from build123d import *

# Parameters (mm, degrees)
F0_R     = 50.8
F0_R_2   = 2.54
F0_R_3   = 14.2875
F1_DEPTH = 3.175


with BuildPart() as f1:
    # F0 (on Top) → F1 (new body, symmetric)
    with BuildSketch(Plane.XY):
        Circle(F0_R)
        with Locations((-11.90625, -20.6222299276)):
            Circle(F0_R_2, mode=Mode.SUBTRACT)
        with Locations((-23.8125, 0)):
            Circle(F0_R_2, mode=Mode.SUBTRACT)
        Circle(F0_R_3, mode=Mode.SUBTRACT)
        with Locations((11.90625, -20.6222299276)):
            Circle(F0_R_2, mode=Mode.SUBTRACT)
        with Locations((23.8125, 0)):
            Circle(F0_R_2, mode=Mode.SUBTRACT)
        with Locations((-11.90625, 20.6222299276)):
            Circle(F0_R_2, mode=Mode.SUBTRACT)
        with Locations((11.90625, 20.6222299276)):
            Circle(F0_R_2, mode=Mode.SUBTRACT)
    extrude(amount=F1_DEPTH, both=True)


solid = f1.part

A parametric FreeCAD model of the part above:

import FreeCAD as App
import Part
import Sketcher
Q = App.Units.Quantity

doc = App.newDocument("Part")
body = doc.addObject("PartDesign::Body", "Body")

# Sketch on XY plane
sketch1 = body.newObject("Sketcher::SketchObject", "Sketch")
sketch1.AttachmentSupport = (doc.getObject("XY_Plane"), [""])
sketch1.MapMode = "FlatFace"
sketch1.addGeometry([
    Part.Circle(App.Vector(0, 0, 0), App.Vector(0, 0, 1), 50.8),  # 0
    Part.Circle(App.Vector(-11.9, -20.6, 0), App.Vector(0, 0, 1), 2.5),  # 1
    Part.Circle(App.Vector(11.9, -20.6, 0), App.Vector(0, 0, 1), 2.5),  # 2
    Part.Circle(App.Vector(0, 0, 0), App.Vector(0, 0, 1), 14.3),  # 3
    Part.Circle(App.Vector(-23.8, 0, 0), App.Vector(0, 0, 1), 2.5),  # 4
    Part.Circle(App.Vector(-11.9, 20.6, 0), App.Vector(0, 0, 1), 2.5),  # 5
    Part.Circle(App.Vector(23.8, 0, 0), App.Vector(0, 0, 1), 2.5),  # 6
    Part.Circle(App.Vector(11.9, 20.6, 0), App.Vector(0, 0, 1), 2.5),  # 7
], False)
sketch1.addConstraint([
    Sketcher.Constraint("Coincident", 0, 3, -1, 1),
    Sketcher.Constraint("Coincident", 3, 3, -1, 1),
    Sketcher.Constraint("Equal", 1, 2),
    Sketcher.Constraint("Equal", 2, 4),
    Sketcher.Constraint("Equal", 4, 5),
    Sketcher.Constraint("Equal", 5, 6),
    Sketcher.Constraint("Equal", 6, 7),
    Sketcher.Constraint("Symmetric", 2, 3, 5, 3, -1, 1),
    Sketcher.Constraint("Symmetric", 4, 3, 6, 3, -1, 1),
    Sketcher.Constraint("Symmetric", 1, 3, 7, 3, -1, 1),
    Sketcher.Constraint("Symmetric", 1, 3, 2, 3, -2),
    Sketcher.Constraint("PointOnObject", 4, 3, -1),
    Sketcher.Constraint("Diameter", 0, Q("4 in")),
    Sketcher.Constraint("Diameter", 1, Q("0.2 in")),
    Sketcher.Constraint("Diameter", 3, Q("1.125 in")),
    Sketcher.Constraint("DistanceX", 1, 3, -1, 1, Q("0.46875 in")),
    Sketcher.Constraint("DistanceX", 4, 3, -1, 1, Q("0.9375 in")),
    Sketcher.Constraint("DistanceY", 1, 3, -1, 1, Q("20.62223 mm")),
])
pad1 = body.newObject("PartDesign::Pad", "Pad")
pad1.Profile = sketch1
pad1.Length = Q("0.25 in")
pad1.Midplane = True

doc.recompute()
